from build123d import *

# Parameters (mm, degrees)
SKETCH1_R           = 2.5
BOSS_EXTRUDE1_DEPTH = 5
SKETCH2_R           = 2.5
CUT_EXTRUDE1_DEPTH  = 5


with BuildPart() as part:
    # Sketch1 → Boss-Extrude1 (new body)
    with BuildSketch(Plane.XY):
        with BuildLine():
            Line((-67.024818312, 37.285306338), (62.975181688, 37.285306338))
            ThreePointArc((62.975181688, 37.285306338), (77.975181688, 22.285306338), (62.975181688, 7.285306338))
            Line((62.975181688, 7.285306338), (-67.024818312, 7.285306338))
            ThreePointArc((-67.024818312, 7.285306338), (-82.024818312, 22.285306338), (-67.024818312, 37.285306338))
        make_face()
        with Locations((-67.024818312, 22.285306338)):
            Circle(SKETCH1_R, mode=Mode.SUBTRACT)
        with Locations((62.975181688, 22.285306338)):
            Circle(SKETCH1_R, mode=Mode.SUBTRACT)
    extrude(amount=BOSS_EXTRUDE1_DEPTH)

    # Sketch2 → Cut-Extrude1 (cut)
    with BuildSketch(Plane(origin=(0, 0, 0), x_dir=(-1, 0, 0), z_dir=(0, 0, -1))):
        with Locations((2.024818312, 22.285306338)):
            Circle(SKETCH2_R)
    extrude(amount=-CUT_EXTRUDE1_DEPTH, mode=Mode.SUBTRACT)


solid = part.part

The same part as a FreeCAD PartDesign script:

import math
import FreeCAD as App
import Part
import Sketcher
from FreeCAD import Vector

doc = App.newDocument("Part")
body = doc.addObject("PartDesign::Body", "Body")

sketch1 = doc.addObject("Sketcher::SketchObject", "Sketch")
body.addObject(sketch1)
sketch1.AttachmentSupport = (doc.XY_Plane, [""])
sketch1.MapMode = "FlatFace"
sketch1.addGeometry([
    Part.LineSegment(Vector(62.975182, 37.285306, 0), Vector(-67.024818, 37.285306, 0)),
    Part.ArcOfCircle(Part.Circle(Vector(-67.024818, 22.285306, 0), Vector(0, 0, 1), 15), math.radians(90), math.radians(270)),
    Part.LineSegment(Vector(-67.024818, 7.285306, 0), Vector(62.975182, 7.285306, 0)),
    Part.ArcOfCircle(Part.Circle(Vector(62.975182, 22.285306, 0), Vector(0, 0, 1), 15), math.radians(-90), math.radians(90)),
    Part.Circle(Vector(62.975182, 22.285306, 0), Vector(0, 0, 1), 2.5),
    Part.Circle(Vector(-67.024818, 22.285306, 0), Vector(0, 0, 1), 2.5),
], False)
sketch1.addConstraint([
    Sketcher.Constraint("Tangent", 0, 2, 1, 1),
    Sketcher.Constraint("Tangent", 1, 2, 2, 1),
    Sketcher.Constraint("Tangent", 2, 2, 3, 1),
    Sketcher.Constraint("Tangent", 3, 2, 0, 1),
    Sketcher.Constraint("Horizontal", 0),
    Sketcher.Constraint("Horizontal", 2),
    Sketcher.Constraint("Coincident", 4, 3, 3, 3),
    Sketcher.Constraint("Coincident", 5, 3, 1, 3),
    Sketcher.Constraint("Equal", 4, 5),
    Sketcher.Constraint("Diameter", 4, 5.0),
    Sketcher.Constraint("Radius", 1, 15.0),
    Sketcher.Constraint("DistanceX", 0, 2, 0, 1, 130.0),
    Sketcher.Constraint("DistanceX", 1, 3, -1, 1, 67.024818),
    Sketcher.Constraint("DistanceY", -1, 1, 1, 3, 22.285306),
])
pad1 = doc.addObject("PartDesign::Pad", "Pad")
body.addObject(pad1)
pad1.Profile = sketch1
pad1.Length = 5

sketch2 = doc.addObject("Sketcher::SketchObject", "Sketch001")
body.addObject(sketch2)
sketch2.AttachmentSupport = (doc.XY_Plane, [""])
sketch2.MapMode = "FlatFace"
sketch2.addGeometry(Part.Circle(Vector(-2.024818, 22.285306, 0), Vector(0, 0, 1), 2.5), False)
sketch2.addConstraint([
    Sketcher.Constraint("Diameter", 0, 5.0),
    Sketcher.Constraint("DistanceX", 0, 3, -1, 1, 2.024818),
    Sketcher.Constraint("DistanceY", -1, 1, 0, 3, 22.285306),
])
pocket1 = doc.addObject("PartDesign::Pocket", "Pocket")
body.addObject(pocket1)
pocket1.Profile = sketch2
pocket1.Length = 5
pocket1.Reversed = True

doc.recompute()
